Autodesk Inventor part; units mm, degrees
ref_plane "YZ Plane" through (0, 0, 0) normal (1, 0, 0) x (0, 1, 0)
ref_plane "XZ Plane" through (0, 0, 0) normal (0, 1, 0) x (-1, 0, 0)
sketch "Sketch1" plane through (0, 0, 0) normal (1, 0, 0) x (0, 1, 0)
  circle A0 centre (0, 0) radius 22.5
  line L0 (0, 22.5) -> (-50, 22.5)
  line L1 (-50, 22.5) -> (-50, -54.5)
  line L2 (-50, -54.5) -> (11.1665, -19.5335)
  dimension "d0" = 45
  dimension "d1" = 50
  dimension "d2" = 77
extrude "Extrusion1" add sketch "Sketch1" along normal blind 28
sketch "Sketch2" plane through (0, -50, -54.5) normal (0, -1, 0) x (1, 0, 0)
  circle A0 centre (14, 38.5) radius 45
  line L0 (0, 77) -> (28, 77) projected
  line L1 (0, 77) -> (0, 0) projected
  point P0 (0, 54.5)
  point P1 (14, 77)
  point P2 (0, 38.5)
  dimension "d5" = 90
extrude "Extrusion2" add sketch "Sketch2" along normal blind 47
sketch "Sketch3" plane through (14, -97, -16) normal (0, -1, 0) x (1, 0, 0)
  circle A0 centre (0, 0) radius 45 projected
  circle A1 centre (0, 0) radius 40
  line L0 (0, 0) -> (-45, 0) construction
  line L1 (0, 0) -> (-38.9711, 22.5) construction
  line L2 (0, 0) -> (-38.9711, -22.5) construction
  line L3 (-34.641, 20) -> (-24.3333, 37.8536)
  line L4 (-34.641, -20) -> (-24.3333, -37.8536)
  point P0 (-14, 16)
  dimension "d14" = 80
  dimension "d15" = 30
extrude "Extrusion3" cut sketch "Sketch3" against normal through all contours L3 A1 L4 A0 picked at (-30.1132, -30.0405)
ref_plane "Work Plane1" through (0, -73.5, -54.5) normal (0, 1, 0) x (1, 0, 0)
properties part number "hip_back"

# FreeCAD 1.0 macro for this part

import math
import FreeCAD as App
import Part
import Sketcher
Q = App.Units.Quantity

doc = App.newDocument("Part")
body = doc.addObject("PartDesign::Body", "Body")

# Sketch on YZ plane
sketch1 = doc.addObject("Sketcher::SketchObject", "Sketch")
body.addObject(sketch1)
sketch1.AttachmentSupport = (doc.YZ_Plane, [""])
sketch1.MapMode = "FlatFace"
sketch1.addGeometry([
    Part.ArcOfCircle(Part.Circle(App.Vector(0, 0, 0), App.Vector(0, 0, 1), 22), math.radians(-60), math.radians(90)),
    Part.LineSegment(App.Vector(0, 22, 0), App.Vector(-50, 22, 0)),
    Part.LineSegment(App.Vector(-50, 22, 0), App.Vector(-50, -54, 0)),
    Part.LineSegment(App.Vector(-50, -54, 0), App.Vector(11, -20, 0)),
], False)
sketch1.addConstraint([
    Sketcher.Constraint("Tangent", 0, 2, 1, 1),
    Sketcher.Constraint("Coincident", 1, 2, 2, 1),
    Sketcher.Constraint("Coincident", 2, 2, 3, 1),
    Sketcher.Constraint("Tangent", 3, 2, 0, 1),
    Sketcher.Constraint("Horizontal", 1),
    Sketcher.Constraint("Vertical", 2),
    Sketcher.Constraint("Coincident", 0, 3, -1, 1),
    Sketcher.Constraint("Radius", 0, 22.5),
    Sketcher.Constraint("DistanceX", 1, 2, 1, 1, 50.0),
    Sketcher.Constraint("DistanceY", 2, 2, 2, 1, 77.0),
])
pad1 = doc.addObject("PartDesign::Pad", "Pad")
body.addObject(pad1)
pad1.Profile = sketch1
pad1.Length = 28

# Sketch on XZ plane
sketch2 = doc.addObject("Sketcher::SketchObject", "Sketch001")
body.addObject(sketch2)
sketch2.AttachmentSupport = (doc.XZ_Plane, [""])
sketch2.MapMode = "FlatFace"
sketch2.AttachmentOffset = App.Placement(App.Vector(0, 0, 50), App.Rotation())
sketch2.addGeometry(Part.Circle(App.Vector(14, -16, 0), App.Vector(0, 0, 1), 45), False)
sketch2.addConstraint([
    Sketcher.Constraint("Diameter", 0, 90.0),
    Sketcher.Constraint("DistanceX", -1, 1, 0, 3, 14.0),
    Sketcher.Constraint("DistanceY", 0, 3, -1, 1, 16.0),
])
pad2 = doc.addObject("PartDesign::Pad", "Pad001")
body.addObject(pad2)
pad2.Profile = sketch2
pad2.Length = 47

# Sketch on XZ plane
sketch3 = doc.addObject("Sketcher::SketchObject", "Sketch002")
body.addObject(sketch3)
sketch3.AttachmentSupport = (doc.XZ_Plane, [""])
sketch3.MapMode = "FlatFace"
sketch3.AttachmentOffset = App.Placement(App.Vector(0, 0, 97), App.Rotation())
sketch3.addGeometry([
    Part.LineSegment(App.Vector(-21, 4, 0), App.Vector(-10, 22, 0)),
    Part.ArcOfCircle(Part.Circle(App.Vector(14, -16, 0), App.Vector(0, 0, 1), 45), math.radians(123), math.radians(237)),
    Part.LineSegment(App.Vector(-10, -54, 0), App.Vector(-21, -36, 0)),
    Part.ArcOfCircle(Part.Circle(App.Vector(14, -16, 0), App.Vector(0, 0, 1), 40), math.radians(150), math.radians(210)),
], False)
sketch3.addConstraint([
    Sketcher.Constraint("Coincident", 0, 2, 1, 1),
    Sketcher.Constraint("Coincident", 1, 2, 2, 1),
    Sketcher.Constraint("Tangent", 2, 2, 3, 2),
    Sketcher.Constraint("Tangent", 3, 1, 0, 1),
    Sketcher.Constraint("Coincident", 3, 3, 1, 3),
    Sketcher.Constraint("Vertical", 0, 2, 1, 2),
    Sketcher.Constraint("Radius", 3, 40.0),
    Sketcher.Constraint("Radius", 1, 45.0),
    Sketcher.Constraint("Angle", 0, Q("60.0002 deg")),
    Sketcher.Constraint("DistanceX", -1, 1, 1, 3, 14.0),
    Sketcher.Constraint("DistanceY", 1, 3, -1, 1, 16.0),
])
pocket1 = doc.addObject("PartDesign::Pocket", "Pocket")
body.addObject(pocket1)
pocket1.Profile = sketch3
pocket1.Type = "ThroughAll"

doc.recompute()
